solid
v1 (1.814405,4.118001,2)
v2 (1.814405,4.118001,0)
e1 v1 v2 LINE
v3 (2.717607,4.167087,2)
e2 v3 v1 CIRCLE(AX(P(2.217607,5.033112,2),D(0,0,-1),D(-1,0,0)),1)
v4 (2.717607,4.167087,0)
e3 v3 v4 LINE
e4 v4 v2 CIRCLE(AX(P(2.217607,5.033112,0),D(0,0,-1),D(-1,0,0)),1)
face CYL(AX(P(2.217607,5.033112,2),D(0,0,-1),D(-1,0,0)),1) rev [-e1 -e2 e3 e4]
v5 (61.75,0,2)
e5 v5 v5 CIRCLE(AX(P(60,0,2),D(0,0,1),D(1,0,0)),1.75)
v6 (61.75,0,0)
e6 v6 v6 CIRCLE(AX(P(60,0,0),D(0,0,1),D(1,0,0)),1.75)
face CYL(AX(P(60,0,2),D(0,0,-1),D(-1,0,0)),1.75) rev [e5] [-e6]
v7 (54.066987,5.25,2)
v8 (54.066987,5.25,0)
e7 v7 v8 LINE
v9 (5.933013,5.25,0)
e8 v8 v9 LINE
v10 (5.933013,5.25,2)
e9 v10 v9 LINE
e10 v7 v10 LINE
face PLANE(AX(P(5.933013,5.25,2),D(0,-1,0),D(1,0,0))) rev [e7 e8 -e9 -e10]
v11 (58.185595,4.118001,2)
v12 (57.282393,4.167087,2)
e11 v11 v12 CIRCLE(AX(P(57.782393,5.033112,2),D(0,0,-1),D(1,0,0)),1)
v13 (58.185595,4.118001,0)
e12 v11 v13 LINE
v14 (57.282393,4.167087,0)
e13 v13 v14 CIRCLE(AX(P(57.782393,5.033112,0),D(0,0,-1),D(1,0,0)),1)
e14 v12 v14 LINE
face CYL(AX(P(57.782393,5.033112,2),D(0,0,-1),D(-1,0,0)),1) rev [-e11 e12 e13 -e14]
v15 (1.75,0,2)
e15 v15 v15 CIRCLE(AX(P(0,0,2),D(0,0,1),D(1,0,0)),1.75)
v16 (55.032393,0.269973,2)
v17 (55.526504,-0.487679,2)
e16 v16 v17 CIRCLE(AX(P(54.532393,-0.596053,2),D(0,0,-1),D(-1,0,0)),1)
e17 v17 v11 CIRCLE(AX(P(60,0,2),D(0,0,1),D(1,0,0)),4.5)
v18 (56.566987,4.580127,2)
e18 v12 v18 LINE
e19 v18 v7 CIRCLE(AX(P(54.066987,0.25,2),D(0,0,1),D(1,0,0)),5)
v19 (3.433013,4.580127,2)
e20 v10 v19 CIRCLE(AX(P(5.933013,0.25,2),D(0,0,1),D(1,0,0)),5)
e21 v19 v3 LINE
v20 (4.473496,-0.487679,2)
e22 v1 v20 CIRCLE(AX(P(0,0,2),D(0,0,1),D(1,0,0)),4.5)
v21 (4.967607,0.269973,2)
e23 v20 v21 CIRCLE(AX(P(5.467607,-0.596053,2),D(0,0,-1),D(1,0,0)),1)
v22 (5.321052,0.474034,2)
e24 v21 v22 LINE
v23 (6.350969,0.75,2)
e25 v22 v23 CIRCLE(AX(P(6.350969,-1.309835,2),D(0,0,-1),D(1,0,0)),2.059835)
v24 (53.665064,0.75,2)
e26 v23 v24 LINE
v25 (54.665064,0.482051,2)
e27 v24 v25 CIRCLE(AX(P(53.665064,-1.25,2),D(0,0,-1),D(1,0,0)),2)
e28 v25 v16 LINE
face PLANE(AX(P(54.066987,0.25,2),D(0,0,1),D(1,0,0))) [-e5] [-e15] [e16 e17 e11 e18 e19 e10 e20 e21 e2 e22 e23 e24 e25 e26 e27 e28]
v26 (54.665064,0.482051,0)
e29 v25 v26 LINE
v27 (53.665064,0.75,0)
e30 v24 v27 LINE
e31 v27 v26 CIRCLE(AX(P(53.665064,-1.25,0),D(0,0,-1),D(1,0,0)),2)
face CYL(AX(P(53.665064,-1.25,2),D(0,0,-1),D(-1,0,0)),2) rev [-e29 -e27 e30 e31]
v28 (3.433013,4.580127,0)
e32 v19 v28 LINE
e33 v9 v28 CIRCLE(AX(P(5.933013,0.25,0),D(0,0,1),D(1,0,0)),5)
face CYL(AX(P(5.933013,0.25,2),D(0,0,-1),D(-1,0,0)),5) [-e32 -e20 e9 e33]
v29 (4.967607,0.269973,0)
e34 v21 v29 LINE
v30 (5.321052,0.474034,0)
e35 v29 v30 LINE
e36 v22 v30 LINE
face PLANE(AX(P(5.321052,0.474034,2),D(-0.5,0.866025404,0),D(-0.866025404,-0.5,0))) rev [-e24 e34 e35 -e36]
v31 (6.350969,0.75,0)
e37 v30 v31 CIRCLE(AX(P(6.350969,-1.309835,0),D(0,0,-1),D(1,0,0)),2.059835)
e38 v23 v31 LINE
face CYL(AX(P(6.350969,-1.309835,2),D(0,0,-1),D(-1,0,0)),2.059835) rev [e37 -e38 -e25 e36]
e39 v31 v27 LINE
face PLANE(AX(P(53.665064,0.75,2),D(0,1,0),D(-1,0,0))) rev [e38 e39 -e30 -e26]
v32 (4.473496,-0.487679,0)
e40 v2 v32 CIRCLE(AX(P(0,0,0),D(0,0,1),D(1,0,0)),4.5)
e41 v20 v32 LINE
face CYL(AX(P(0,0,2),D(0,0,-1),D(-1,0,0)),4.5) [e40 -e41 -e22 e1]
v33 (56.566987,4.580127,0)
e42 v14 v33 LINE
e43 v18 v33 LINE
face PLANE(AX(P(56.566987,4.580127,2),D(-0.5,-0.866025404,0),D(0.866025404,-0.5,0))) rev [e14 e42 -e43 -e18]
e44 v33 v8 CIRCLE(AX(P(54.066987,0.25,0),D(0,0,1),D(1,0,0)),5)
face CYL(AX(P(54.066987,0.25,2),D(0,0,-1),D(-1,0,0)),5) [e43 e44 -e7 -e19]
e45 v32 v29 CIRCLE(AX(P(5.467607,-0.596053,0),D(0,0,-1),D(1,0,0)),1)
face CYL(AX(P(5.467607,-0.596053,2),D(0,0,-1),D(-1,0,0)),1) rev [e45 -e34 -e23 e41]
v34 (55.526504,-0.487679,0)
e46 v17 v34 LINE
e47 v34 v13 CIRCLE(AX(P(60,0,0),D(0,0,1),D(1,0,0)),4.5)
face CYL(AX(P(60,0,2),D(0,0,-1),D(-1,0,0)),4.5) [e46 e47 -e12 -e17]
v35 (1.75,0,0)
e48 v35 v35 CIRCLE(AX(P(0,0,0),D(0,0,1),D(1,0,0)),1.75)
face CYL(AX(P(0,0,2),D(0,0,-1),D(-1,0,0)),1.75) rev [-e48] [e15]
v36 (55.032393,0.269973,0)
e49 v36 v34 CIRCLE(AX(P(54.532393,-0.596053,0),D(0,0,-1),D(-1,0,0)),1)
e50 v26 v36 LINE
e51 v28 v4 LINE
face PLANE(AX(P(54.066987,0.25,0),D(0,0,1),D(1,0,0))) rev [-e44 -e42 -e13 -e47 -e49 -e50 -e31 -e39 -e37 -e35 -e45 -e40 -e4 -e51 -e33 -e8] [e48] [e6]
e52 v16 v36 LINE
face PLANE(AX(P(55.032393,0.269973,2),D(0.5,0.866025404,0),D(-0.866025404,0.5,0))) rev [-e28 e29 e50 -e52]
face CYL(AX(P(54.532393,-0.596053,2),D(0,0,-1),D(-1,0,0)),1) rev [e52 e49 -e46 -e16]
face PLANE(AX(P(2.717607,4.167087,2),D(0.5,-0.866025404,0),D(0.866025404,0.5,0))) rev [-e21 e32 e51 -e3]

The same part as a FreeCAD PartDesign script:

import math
import FreeCAD as App
import Part
import Sketcher

V = App.Vector
Q = App.Units.Quantity

doc = App.newDocument("Part")
params = doc.addObject("Spreadsheet::Sheet", "Params")
for row, (alias, value) in enumerate([
    ("sketch1_radius", "1 mm"),
    ("sketch1_radius2", "2 mm"),
    ("sketch1_radius3", "5 mm"),
    ("sketch1_diameter", "3.5 mm"),
    ("sketch1_radius4", "4.5 mm"),
    ("pad1_length", "2 mm"),
], start=1):
    params.set(f"A{row}", alias)
    params.set(f"B{row}", "=" + value)
    params.setAlias(f"B{row}", alias)

body = doc.addObject("PartDesign::Body", "Body")

sketch1 = body.newObject("Sketcher::SketchObject", "Sketch")
sketch1.AttachmentSupport = (doc.getObject("XY_Plane"), [""])
sketch1.MapMode = "FlatFace"
sketch1.addGeometry(Part.LineSegment(V(3.43, 4.58, 0), V(2.72, 4.17, 0)), False)
sketch1.addGeometry(Part.ArcOfCircle(Part.Circle(V(2.22, 5.03, 0), V(0, 0, 1), 1), math.radians(-114), math.radians(-60)), False)
sketch1.addGeometry(Part.ArcOfCircle(Part.Circle(V(0, 0, 0), V(0, 0, 1), 4.5), math.radians(66), math.radians(354)), False)
sketch1.addGeometry(Part.ArcOfCircle(Part.Circle(V(5.47, -0.6, 0), V(0, 0, 1), 1), math.radians(120), math.radians(174)), False)
sketch1.addGeometry(Part.LineSegment(V(4.97, 0.27, 0), V(5.32, 0.47, 0)), False)
sketch1.addGeometry(Part.ArcOfCircle(Part.Circle(V(6.35, -1.31, 0), V(0, 0, 1), 2.06), math.radians(90), math.radians(120)), False)
sketch1.addGeometry(Part.LineSegment(V(6.35, 0.75, 0), V(53.67, 0.75, 0)), False)
sketch1.addGeometry(Part.ArcOfCircle(Part.Circle(V(53.67, -1.25, 0), V(0, 0, 1), 2), math.radians(60), math.radians(90)), False)
sketch1.addGeometry(Part.LineSegment(V(54.67, 0.48, 0), V(55.03, 0.27, 0)), False)
sketch1.addGeometry(Part.ArcOfCircle(Part.Circle(V(54.53, -0.6, 0), V(0, 0, 1), 1), math.radians(6), math.radians(60)), False)
sketch1.addGeometry(Part.ArcOfCircle(Part.Circle(V(60, 0, 0), V(0, 0, 1), 4.5), math.radians(-174), math.radians(114)), False)
sketch1.addGeometry(Part.ArcOfCircle(Part.Circle(V(57.78, 5.03, 0), V(0, 0, 1), 1), math.radians(-120), math.radians(-66)), False)
sketch1.addGeometry(Part.LineSegment(V(57.28, 4.17, 0), V(56.57, 4.58, 0)), False)
sketch1.addGeometry(Part.ArcOfCircle(Part.Circle(V(54.07, 0.25, 0), V(0, 0, 1), 5), math.radians(60), math.radians(90)), False)
sketch1.addGeometry(Part.LineSegment(V(54.07, 5.25, 0), V(5.93, 5.25, 0)), False)
sketch1.addGeometry(Part.ArcOfCircle(Part.Circle(V(5.93, 0.25, 0), V(0, 0, 1), 5), math.radians(90), math.radians(120)), False)
sketch1.addGeometry(Part.Circle(V(60, 0, 0), V(0, 0, 1), 1.75), False)
sketch1.addGeometry(Part.Circle(V(0, 0, 0), V(0, 0, 1), 1.75), False)
sketch1.addConstraint(Sketcher.Constraint("Tangent", 0, 2, 1, 2))
sketch1.addConstraint(Sketcher.Constraint("Tangent", 1, 1, 2, 1))
sketch1.addConstraint(Sketcher.Constraint("Tangent", 2, 2, 3, 2))
sketch1.addConstraint(Sketcher.Constraint("Tangent", 3, 1, 4, 1))
sketch1.addConstraint(Sketcher.Constraint("Tangent", 4, 2, 5, 2))
sketch1.addConstraint(Sketcher.Constraint("Tangent", 5, 1, 6, 1))
sketch1.addConstraint(Sketcher.Constraint("Tangent", 6, 2, 7, 2))
sketch1.addConstraint(Sketcher.Constraint("Tangent", 7, 1, 8, 1))
sketch1.addConstraint(Sketcher.Constraint("Tangent", 8, 2, 9, 2))
sketch1.addConstraint(Sketcher.Constraint("Tangent", 9, 1, 10, 1))
sketch1.addConstraint(Sketcher.Constraint("Tangent", 10, 2, 11, 2))
sketch1.addConstraint(Sketcher.Constraint("Tangent", 11, 1, 12, 1))
sketch1.addConstraint(Sketcher.Constraint("Tangent", 12, 2, 13, 1))
sketch1.addConstraint(Sketcher.Constraint("Tangent", 13, 2, 14, 1))
sketch1.addConstraint(Sketcher.Constraint("Tangent", 14, 2, 15, 1))
sketch1.addConstraint(Sketcher.Constraint("Tangent", 15, 2, 0, 1))
sketch1.addConstraint(Sketcher.Constraint("Horizontal", 6))
sketch1.addConstraint(Sketcher.Constraint("Horizontal", 14))
sketch1.addConstraint(Sketcher.Constraint("Coincident", 2, 3, -1, 1))
sketch1.addConstraint(Sketcher.Constraint("Coincident", 17, 3, -1, 1))
sketch1.addConstraint(Sketcher.Constraint("Coincident", 16, 3, 10, 3))
sketch1.addConstraint(Sketcher.Constraint("Equal", 1, 3))
sketch1.addConstraint(Sketcher.Constraint("Equal", 3, 9))
sketch1.addConstraint(Sketcher.Constraint("Equal", 2, 10))
sketch1.addConstraint(Sketcher.Constraint("Equal", 9, 11))
sketch1.addConstraint(Sketcher.Constraint("Equal", 13, 15))
sketch1.addConstraint(Sketcher.Constraint("Equal", 16, 17))
sketch1.addConstraint(Sketcher.Constraint("PointOnObject", 10, 3, -1))
sketch1.addConstraint(Sketcher.Constraint("Parallel", 0, 4))
sketch1.addConstraint(Sketcher.Constraint("Parallel", 8, 12))
sketch1.addConstraint(Sketcher.Constraint("Horizontal", 3, 3, 9, 3))
sketch1.addConstraint(Sketcher.Constraint("Horizontal", 1, 3, 11, 3))
sketch1.addConstraint(Sketcher.Constraint("Horizontal", 3, 1, 8, 2))
sketch1.addConstraint(Sketcher.Constraint("Radius", 1, Q("1 mm")))
sketch1.addConstraint(Sketcher.Constraint("Radius", 7, Q("2 mm")))
sketch1.addConstraint(Sketcher.Constraint("Radius", 13, Q("5 mm")))
sketch1.addConstraint(Sketcher.Constraint("Diameter", 16, Q("3.5 mm")))
sketch1.addConstraint(Sketcher.Constraint("Radius", 2, Q("4.5 mm")))
sketch1.addConstraint(Sketcher.Constraint("Angle", 0, Q("-150 deg")))
sketch1.addConstraint(Sketcher.Constraint("DistanceX", -1, 1, 10, 3, Q("60 mm")))
sketch1.addConstraint(Sketcher.Constraint("DistanceY", 7, 3, 13, 3, Q("1.5 mm")))
sketch1.addConstraint(Sketcher.Constraint("DistanceY", 7, 3, -1, 1, Q("1.25 mm")))
sketch1.addConstraint(Sketcher.Constraint("DistanceX", 1, 3, 3, 3, Q("3.25 mm")))
sketch1.addConstraint(Sketcher.Constraint("DistanceY", -1, 1, 1, 1, Q("4.118001 mm")))
sketch1.addConstraint(Sketcher.Constraint("Radius", 5, Q("2.059835 mm")))
sketch1.setExpression("Constraints[33]", "Params.sketch1_radius")
sketch1.setExpression("Constraints[34]", "Params.sketch1_radius2")
sketch1.setExpression("Constraints[35]", "Params.sketch1_radius3")
sketch1.setExpression("Constraints[36]", "Params.sketch1_diameter")
sketch1.setExpression("Constraints[37]", "Params.sketch1_radius4")
pad1 = body.newObject("PartDesign::Pad", "Pad")
pad1.Profile = sketch1
pad1.setExpression("Length", "Params.pad1_length")

doc.recompute()
